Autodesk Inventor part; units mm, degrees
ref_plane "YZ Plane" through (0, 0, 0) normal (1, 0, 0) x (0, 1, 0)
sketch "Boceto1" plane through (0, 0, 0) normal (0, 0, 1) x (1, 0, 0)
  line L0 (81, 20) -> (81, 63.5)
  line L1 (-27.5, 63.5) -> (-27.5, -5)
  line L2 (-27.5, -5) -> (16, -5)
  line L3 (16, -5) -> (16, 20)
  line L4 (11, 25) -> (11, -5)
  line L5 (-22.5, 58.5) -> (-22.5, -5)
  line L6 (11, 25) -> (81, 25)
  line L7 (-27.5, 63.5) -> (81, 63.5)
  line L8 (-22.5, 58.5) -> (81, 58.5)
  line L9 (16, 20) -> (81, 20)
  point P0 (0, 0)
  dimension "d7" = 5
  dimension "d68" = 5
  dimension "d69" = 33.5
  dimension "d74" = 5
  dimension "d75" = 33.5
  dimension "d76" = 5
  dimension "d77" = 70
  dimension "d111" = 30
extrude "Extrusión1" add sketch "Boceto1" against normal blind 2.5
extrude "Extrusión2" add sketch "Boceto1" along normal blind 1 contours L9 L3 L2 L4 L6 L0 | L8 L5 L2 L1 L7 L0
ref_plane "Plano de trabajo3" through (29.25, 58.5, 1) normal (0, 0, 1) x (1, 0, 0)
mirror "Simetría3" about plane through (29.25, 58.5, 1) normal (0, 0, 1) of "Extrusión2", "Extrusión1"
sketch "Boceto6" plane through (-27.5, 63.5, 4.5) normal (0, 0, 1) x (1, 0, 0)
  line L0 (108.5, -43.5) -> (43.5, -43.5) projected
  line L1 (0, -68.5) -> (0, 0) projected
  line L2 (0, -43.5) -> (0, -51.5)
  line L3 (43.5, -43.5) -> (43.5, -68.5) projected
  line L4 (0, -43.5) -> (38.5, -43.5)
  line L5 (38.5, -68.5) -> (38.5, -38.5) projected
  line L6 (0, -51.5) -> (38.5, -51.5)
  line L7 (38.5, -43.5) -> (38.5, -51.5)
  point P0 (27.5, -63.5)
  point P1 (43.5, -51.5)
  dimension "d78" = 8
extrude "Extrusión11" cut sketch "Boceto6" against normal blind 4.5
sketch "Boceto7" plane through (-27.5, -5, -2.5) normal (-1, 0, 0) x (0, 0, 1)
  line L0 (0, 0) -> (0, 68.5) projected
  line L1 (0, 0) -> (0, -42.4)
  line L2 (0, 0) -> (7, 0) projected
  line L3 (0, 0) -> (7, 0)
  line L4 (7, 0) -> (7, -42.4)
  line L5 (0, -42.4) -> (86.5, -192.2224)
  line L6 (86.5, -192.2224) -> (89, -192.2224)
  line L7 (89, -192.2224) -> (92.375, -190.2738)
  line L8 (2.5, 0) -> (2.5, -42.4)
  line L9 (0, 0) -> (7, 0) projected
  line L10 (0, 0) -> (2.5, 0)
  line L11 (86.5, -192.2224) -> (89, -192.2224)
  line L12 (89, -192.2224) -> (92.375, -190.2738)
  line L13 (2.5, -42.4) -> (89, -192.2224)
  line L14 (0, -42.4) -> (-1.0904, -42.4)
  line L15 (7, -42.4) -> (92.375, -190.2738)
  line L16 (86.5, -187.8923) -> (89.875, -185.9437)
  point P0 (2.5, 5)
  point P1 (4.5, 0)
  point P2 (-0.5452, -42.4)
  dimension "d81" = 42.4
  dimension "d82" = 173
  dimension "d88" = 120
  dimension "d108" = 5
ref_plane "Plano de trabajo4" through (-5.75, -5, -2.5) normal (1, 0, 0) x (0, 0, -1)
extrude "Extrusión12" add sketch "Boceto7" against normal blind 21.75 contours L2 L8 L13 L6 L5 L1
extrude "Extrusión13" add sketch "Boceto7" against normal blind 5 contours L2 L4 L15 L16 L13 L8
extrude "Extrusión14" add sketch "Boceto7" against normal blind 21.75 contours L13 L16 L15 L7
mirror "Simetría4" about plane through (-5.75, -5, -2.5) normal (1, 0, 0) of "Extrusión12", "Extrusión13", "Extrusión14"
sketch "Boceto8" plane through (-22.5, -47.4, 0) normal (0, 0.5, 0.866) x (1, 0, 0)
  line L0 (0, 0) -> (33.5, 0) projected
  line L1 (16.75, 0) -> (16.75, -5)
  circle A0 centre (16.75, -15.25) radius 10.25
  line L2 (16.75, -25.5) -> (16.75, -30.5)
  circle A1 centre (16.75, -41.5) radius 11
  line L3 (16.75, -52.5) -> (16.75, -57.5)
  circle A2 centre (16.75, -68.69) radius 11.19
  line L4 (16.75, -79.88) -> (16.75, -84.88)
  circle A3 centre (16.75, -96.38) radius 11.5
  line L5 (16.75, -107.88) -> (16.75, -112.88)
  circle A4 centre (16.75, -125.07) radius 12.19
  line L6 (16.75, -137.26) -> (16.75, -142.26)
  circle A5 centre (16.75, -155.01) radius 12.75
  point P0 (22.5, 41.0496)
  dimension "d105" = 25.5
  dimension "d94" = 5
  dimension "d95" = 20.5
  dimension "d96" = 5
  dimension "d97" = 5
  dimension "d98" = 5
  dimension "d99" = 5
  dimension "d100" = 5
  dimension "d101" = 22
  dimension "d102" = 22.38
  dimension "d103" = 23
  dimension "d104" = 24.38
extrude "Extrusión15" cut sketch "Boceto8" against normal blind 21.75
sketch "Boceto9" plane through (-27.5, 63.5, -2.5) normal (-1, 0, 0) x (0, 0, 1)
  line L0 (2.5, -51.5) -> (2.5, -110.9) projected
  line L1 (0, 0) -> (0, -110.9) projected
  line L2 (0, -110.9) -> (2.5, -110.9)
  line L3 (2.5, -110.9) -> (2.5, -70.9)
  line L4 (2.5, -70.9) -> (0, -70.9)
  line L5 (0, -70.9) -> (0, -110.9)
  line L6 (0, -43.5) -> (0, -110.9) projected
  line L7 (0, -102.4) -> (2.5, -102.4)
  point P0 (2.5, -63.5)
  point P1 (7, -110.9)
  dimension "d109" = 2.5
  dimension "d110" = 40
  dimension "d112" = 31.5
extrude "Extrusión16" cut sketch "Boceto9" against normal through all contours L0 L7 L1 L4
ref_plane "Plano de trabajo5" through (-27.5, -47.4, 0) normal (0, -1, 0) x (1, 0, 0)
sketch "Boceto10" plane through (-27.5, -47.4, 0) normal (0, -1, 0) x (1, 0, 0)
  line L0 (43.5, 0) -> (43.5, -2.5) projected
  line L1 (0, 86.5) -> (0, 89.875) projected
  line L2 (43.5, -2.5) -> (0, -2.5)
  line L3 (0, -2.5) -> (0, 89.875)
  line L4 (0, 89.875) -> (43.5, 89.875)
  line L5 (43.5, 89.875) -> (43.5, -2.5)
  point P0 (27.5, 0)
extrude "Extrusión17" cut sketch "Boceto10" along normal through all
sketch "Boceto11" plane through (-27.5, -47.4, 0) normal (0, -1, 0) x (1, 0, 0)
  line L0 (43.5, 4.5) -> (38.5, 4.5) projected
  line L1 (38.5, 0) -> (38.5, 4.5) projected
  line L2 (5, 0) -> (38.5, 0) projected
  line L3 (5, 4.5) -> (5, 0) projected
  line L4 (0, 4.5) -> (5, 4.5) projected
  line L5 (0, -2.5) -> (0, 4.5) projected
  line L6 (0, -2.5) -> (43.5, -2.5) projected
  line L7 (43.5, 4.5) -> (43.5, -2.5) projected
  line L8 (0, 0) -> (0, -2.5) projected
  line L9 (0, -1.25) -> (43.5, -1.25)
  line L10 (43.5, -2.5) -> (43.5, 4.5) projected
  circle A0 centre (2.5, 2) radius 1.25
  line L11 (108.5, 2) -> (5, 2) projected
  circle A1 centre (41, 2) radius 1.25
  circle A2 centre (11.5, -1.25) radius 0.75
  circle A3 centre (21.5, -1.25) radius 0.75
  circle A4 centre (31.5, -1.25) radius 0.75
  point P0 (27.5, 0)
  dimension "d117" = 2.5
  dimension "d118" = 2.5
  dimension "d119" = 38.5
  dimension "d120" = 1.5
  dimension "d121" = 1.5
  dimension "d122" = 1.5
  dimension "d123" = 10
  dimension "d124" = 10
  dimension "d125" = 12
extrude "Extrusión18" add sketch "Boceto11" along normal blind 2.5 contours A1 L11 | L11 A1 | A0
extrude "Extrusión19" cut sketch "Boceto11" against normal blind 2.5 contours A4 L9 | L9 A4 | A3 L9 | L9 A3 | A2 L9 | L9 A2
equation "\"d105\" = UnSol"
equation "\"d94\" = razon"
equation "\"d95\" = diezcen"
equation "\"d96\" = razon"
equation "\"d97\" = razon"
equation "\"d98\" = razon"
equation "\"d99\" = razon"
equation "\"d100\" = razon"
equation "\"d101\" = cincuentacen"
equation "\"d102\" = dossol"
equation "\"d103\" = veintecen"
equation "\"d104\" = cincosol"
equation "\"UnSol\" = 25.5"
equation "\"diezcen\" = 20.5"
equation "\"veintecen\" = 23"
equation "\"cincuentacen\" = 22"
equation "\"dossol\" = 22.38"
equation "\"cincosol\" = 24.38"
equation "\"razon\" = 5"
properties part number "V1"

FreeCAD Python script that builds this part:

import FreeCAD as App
import Part
import Sketcher
from FreeCAD import Vector
Q = App.Units.Quantity

doc = App.newDocument("Part")
body = doc.addObject("PartDesign::Body", "Body")

# Sketch on XY plane
sketch1 = doc.addObject("Sketcher::SketchObject", "Sketch")
body.addObject(sketch1)
sketch1.AttachmentSupport = (doc.XY_Plane, [""])
sketch1.MapMode = "FlatFace"
sketch1.addGeometry([
    Part.LineSegment(Vector(16, 20, 0), Vector(81, 20, 0)),  # 0
    Part.LineSegment(Vector(81, 20, 0), Vector(81, 64, 0)),  # 1
    Part.LineSegment(Vector(81, 64, 0), Vector(-28, 64, 0)),  # 2
    Part.LineSegment(Vector(-28, 64, 0), Vector(-28, -5, 0)),  # 3
    Part.LineSegment(Vector(-28, -5, 0), Vector(16, -5, 0)),  # 4
    Part.LineSegment(Vector(16, -5, 0), Vector(16, 20, 0)),  # 5
], False)
sketch1.addConstraint([
    Sketcher.Constraint("Coincident", 0, 2, 1, 1),
    Sketcher.Constraint("Coincident", 1, 2, 2, 1),
    Sketcher.Constraint("Coincident", 2, 2, 3, 1),
    Sketcher.Constraint("Coincident", 3, 2, 4, 1),
    Sketcher.Constraint("Coincident", 4, 2, 5, 1),
    Sketcher.Constraint("Coincident", 5, 2, 0, 1),
    Sketcher.Constraint("Horizontal", 0),
    Sketcher.Constraint("Vertical", 1),
    Sketcher.Constraint("Horizontal", 2),
    Sketcher.Constraint("Vertical", 3),
    Sketcher.Constraint("Horizontal", 4),
    Sketcher.Constraint("Vertical", 5),
    Sketcher.Constraint("Equal", 4, 1),
    Sketcher.Constraint("DistanceY", 3, 2, -1, 1, Q("5 mm")),
    Sketcher.Constraint("DistanceX", 0, 1, 0, 2, Q("65 mm")),
    Sketcher.Constraint("DistanceY", 5, 1, 5, 2, Q("25 mm")),
    Sketcher.Constraint("DistanceX", 2, 2, 2, 1, Q("108.5 mm")),
    Sketcher.Constraint("DistanceX", -1, 1, 0, 2, Q("81 mm")),
])
pad1 = doc.addObject("PartDesign::Pad", "Pad")
body.addObject(pad1)
pad1.Profile = sketch1
pad1.Length = 2.5
pad1.Reversed = True

# Sketch on XY plane
sketch2 = doc.addObject("Sketcher::SketchObject", "Sketch001")
body.addObject(sketch2)
sketch2.AttachmentSupport = (doc.XY_Plane, [""])
sketch2.MapMode = "FlatFace"
sketch2.addGeometry([
    Part.LineSegment(Vector(16, 20, 0), Vector(81, 20, 0)),  # 0
    Part.LineSegment(Vector(81, 20, 0), Vector(81, 25, 0)),  # 1
    Part.LineSegment(Vector(81, 25, 0), Vector(11, 25, 0)),  # 2
    Part.LineSegment(Vector(11, 25, 0), Vector(11, -5, 0)),  # 3
    Part.LineSegment(Vector(11, -5, 0), Vector(16, -5, 0)),  # 4
    Part.LineSegment(Vector(16, -5, 0), Vector(16, 20, 0)),  # 5
    Part.LineSegment(Vector(-22, 58, 0), Vector(81, 58, 0)),  # 6
    Part.LineSegment(Vector(81, 58, 0), Vector(81, 64, 0)),  # 7
    Part.LineSegment(Vector(81, 64, 0), Vector(-28, 64, 0)),  # 8
    Part.LineSegment(Vector(-28, 64, 0), Vector(-28, -5, 0)),  # 9
    Part.LineSegment(Vector(-28, -5, 0), Vector(-22, -5, 0)),  # 10
    Part.LineSegment(Vector(-22, -5, 0), Vector(-22, 58, 0)),  # 11
], False)
sketch2.addConstraint([
    Sketcher.Constraint("Coincident", 0, 2, 1, 1),
    Sketcher.Constraint("Coincident", 1, 2, 2, 1),
    Sketcher.Constraint("Coincident", 2, 2, 3, 1),
    Sketcher.Constraint("Coincident", 3, 2, 4, 1),
    Sketcher.Constraint("Coincident", 4, 2, 5, 1),
    Sketcher.Constraint("Coincident", 5, 2, 0, 1),
    Sketcher.Constraint("Coincident", 6, 2, 7, 1),
    Sketcher.Constraint("Coincident", 7, 2, 8, 1),
    Sketcher.Constraint("Coincident", 8, 2, 9, 1),
    Sketcher.Constraint("Coincident", 9, 2, 10, 1),
    Sketcher.Constraint("Coincident", 10, 2, 11, 1),
    Sketcher.Constraint("Coincident", 11, 2, 6, 1),
    Sketcher.Constraint("Horizontal", 0),
    Sketcher.Constraint("Vertical", 1),
    Sketcher.Constraint("Horizontal", 2),
    Sketcher.Constraint("Vertical", 3),
    Sketcher.Constraint("Horizontal", 4),
    Sketcher.Constraint("Vertical", 5),
    Sketcher.Constraint("Horizontal", 6),
    Sketcher.Constraint("Vertical", 7),
    Sketcher.Constraint("Horizontal", 8),
    Sketcher.Constraint("Vertical", 9),
    Sketcher.Constraint("Horizontal", 10),
    Sketcher.Constraint("Vertical", 11),
    Sketcher.Constraint("Horizontal", 4, 2, 9, 2),
    Sketcher.Constraint("Vertical", 1, 2, 6, 2),
    Sketcher.Constraint("Equal", 4, 10),
    Sketcher.Constraint("Equal", 10, 1),
    Sketcher.Constraint("Equal", 1, 7),
    Sketcher.Constraint("DistanceX", 2, 2, 2, 1, Q("70 mm")),
    Sketcher.Constraint("DistanceX", 4, 1, 4, 2, Q("5 mm")),
    Sketcher.Constraint("DistanceY", 3, 2, 3, 1, Q("30 mm")),
    Sketcher.Constraint("DistanceY", 3, 2, -1, 1, Q("5 mm")),
    Sketcher.Constraint("DistanceY", 1, 2, 6, 2, Q("33.5 mm")),
    Sketcher.Constraint("DistanceX", 10, 2, 3, 2, Q("33.5 mm")),
    Sketcher.Constraint("DistanceX", -1, 1, 0, 2, Q("81 mm")),
])
pad2 = doc.addObject("PartDesign::Pad", "Pad001")
body.addObject(pad2)
pad2.Profile = sketch2
pad2.Length = 1
doc.recompute()

datumplane = doc.addObject("PartDesign::Plane", "DatumPlane")
body.addObject(datumplane)
datumplane.AttachmentSupport = (doc.XY_Plane, [""])
datumplane.MapMode = "FlatFace"
datumplane.AttachmentOffset = App.Placement(Vector(0, 0, 1), App.Rotation())
mirrored = doc.addObject("PartDesign::Mirrored", "Mirrored")
body.addObject(mirrored)
mirrored.Originals = [pad2, pad1]
mirrored.MirrorPlane = (datumplane, [""])
body.Tip = mirrored

# Sketch on XY plane
sketch3 = doc.addObject("Sketcher::SketchObject", "Sketch002")
body.addObject(sketch3)
sketch3.AttachmentSupport = (doc.XY_Plane, [""])
sketch3.MapMode = "FlatFace"
sketch3.AttachmentOffset = App.Placement(Vector(0, 0, 4.5), App.Rotation())
sketch3.addGeometry([
    Part.LineSegment(Vector(-28, 20, 0), Vector(-28, 12, 0)),
    Part.LineSegment(Vector(-28, 12, 0), Vector(11, 12, 0)),
    Part.LineSegment(Vector(11, 12, 0), Vector(11, 20, 0)),
    Part.LineSegment(Vector(11, 20, 0), Vector(-28, 20, 0)),
], False)
sketch3.addConstraint([
    Sketcher.Constraint("Coincident", 0, 2, 1, 1),
    Sketcher.Constraint("Coincident", 1, 2, 2, 1),
    Sketcher.Constraint("Coincident", 2, 2, 3, 1),
    Sketcher.Constraint("Coincident", 3, 2, 0, 1),
    Sketcher.Constraint("Vertical", 0),
    Sketcher.Constraint("Horizontal", 1),
    Sketcher.Constraint("Vertical", 2),
    Sketcher.Constraint("Horizontal", 3),
    Sketcher.Constraint("DistanceY", 0, 2, 0, 1, Q("8 mm")),
    Sketcher.Constraint("DistanceX", 1, 1, 1, 2, Q("38.5 mm")),
    Sketcher.Constraint("DistanceY", -1, 1, 0, 2, Q("12 mm")),
    Sketcher.Constraint("DistanceX", -1, 1, 1, 2, Q("11 mm")),
])
pocket1 = doc.addObject("PartDesign::Pocket", "Pocket")
body.addObject(pocket1)
pocket1.Profile = sketch3
pocket1.Length = 4.5

# Sketch on YZ plane
sketch4 = doc.addObject("Sketcher::SketchObject", "Sketch003")
body.addObject(sketch4)
sketch4.AttachmentSupport = (doc.YZ_Plane, [""])
sketch4.MapMode = "FlatFace"
sketch4.AttachmentOffset = App.Placement(Vector(0, 0, -27.5), App.Rotation())
sketch4.addGeometry([
    Part.LineSegment(Vector(-5, 0, 0), Vector(-5, -2.5, 0)),  # 0
    Part.LineSegment(Vector(-5, -2.5, 0), Vector(-47.4, -2.5, 0)),  # 1
    Part.LineSegment(Vector(-47.4, -2.5, 0), Vector(-197.2, 84, 0)),  # 2
    Part.LineSegment(Vector(-197.2, 84, 0), Vector(-197.2, 86.5, 0)),  # 3
    Part.LineSegment(Vector(-197.2, 86.5, 0), Vector(-47.4, 0, 0)),  # 4
    Part.LineSegment(Vector(-47.4, 0, 0), Vector(-5, 0, 0)),  # 5
], False)
sketch4.addConstraint([
    Sketcher.Constraint("Coincident", 0, 2, 1, 1),
    Sketcher.Constraint("Coincident", 1, 2, 2, 1),
    Sketcher.Constraint("Coincident", 2, 2, 3, 1),
    Sketcher.Constraint("Coincident", 3, 2, 4, 1),
    Sketcher.Constraint("Coincident", 4, 2, 5, 1),
    Sketcher.Constraint("Coincident", 5, 2, 0, 1),
    Sketcher.Constraint("Vertical", 0),
    Sketcher.Constraint("Horizontal", 1),
    Sketcher.Constraint("Vertical", 3),
    Sketcher.Constraint("Horizontal", 5),
    Sketcher.Constraint("PointOnObject", 4, 2, -1),
    Sketcher.Constraint("Parallel", 2, 4),
    Sketcher.Constraint("Vertical", 1, 2, 4, 2),
    Sketcher.Constraint("Distance", 2, Q("173 mm")),
    Sketcher.Constraint("DistanceX", 1, 2, 1, 1, Q("42.4 mm")),
    Sketcher.Constraint("DistanceX", 0, 2, -1, 1, Q("5 mm")),
    Sketcher.Constraint("Angle", 2, Q("150 deg")),
    Sketcher.Constraint("DistanceY", 0, 2, 0, 1, Q("2.5 mm")),
])
pad3 = doc.addObject("PartDesign::Pad", "Pad002")
body.addObject(pad3)
pad3.Profile = sketch4
pad3.Length = 21.75

# Sketch on YZ plane
sketch5 = doc.addObject("Sketcher::SketchObject", "Sketch004")
body.addObject(sketch5)
sketch5.AttachmentSupport = (doc.YZ_Plane, [""])
sketch5.MapMode = "FlatFace"
sketch5.AttachmentOffset = App.Placement(Vector(0, 0, -27.5), App.Rotation())
sketch5.addGeometry([
    Part.LineSegment(Vector(-5, 4.5, 0), Vector(-5, 0, 0)),  # 0
    Part.LineSegment(Vector(-5, 0, 0), Vector(-47.4, 0, 0)),  # 1
    Part.LineSegment(Vector(-47.4, 0, 0), Vector(-192.9, 84, 0)),  # 2
    Part.LineSegment(Vector(-192.9, 84, 0), Vector(-190.9, 87.4, 0)),  # 3
    Part.LineSegment(Vector(-190.9, 87.4, 0), Vector(-47.4, 4.5, 0)),  # 4
    Part.LineSegment(Vector(-47.4, 4.5, 0), Vector(-5, 4.5, 0)),  # 5
], False)
sketch5.addConstraint([
    Sketcher.Constraint("Coincident", 0, 2, 1, 1),
    Sketcher.Constraint("Coincident", 1, 2, 2, 1),
    Sketcher.Constraint("Coincident", 2, 2, 3, 1),
    Sketcher.Constraint("Coincident", 3, 2, 4, 1),
    Sketcher.Constraint("Coincident", 4, 2, 5, 1),
    Sketcher.Constraint("Coincident", 5, 2, 0, 1),
    Sketcher.Constraint("Vertical", 0),
    Sketcher.Constraint("Horizontal", 1),
    Sketcher.Constraint("Horizontal", 5),
    Sketcher.Constraint("PointOnObject", 0, 2, -1),
    Sketcher.Constraint("Perpendicular", 2, 3),
    Sketcher.Constraint("Perpendicular", 3, 4),
    Sketcher.Constraint("Vertical", 1, 2, 4, 2),
    Sketcher.Constraint("DistanceX", 1, 2, 1, 1, Q("42.4 mm")),
    Sketcher.Constraint("DistanceX", 0, 2, -1, 1, Q("5 mm")),
    Sketcher.Constraint("Angle", 2, Q("150 deg")),
    Sketcher.Constraint("Distance", 2, Q("168 mm")),
    Sketcher.Constraint("DistanceY", 0, 2, 0, 1, Q("4.5 mm")),
])
pad4 = doc.addObject("PartDesign::Pad", "Pad003")
body.addObject(pad4)
pad4.Profile = sketch5
pad4.Length = 5

# Sketch on YZ plane
sketch6 = doc.addObject("Sketcher::SketchObject", "Sketch005")
body.addObject(sketch6)
sketch6.AttachmentSupport = (doc.YZ_Plane, [""])
sketch6.MapMode = "FlatFace"
sketch6.AttachmentOffset = App.Placement(Vector(0, 0, -27.5), App.Rotation())
sketch6.addGeometry([
    Part.LineSegment(Vector(-192.9, 84, 0), Vector(-197.2, 86.5, 0)),
    Part.LineSegment(Vector(-197.2, 86.5, 0), Vector(-195.3, 89.9, 0)),
    Part.LineSegment(Vector(-195.3, 89.9, 0), Vector(-190.9, 87.4, 0)),
    Part.LineSegment(Vector(-190.9, 87.4, 0), Vector(-192.9, 84, 0)),
], False)
sketch6.addConstraint([
    Sketcher.Constraint("Coincident", 0, 2, 1, 1),
    Sketcher.Constraint("Coincident", 1, 2, 2, 1),
    Sketcher.Constraint("Coincident", 2, 2, 3, 1),
    Sketcher.Constraint("Coincident", 3, 2, 0, 1),
    Sketcher.Constraint("Perpendicular", 0, 1),
    Sketcher.Constraint("Perpendicular", 1, 2),
    Sketcher.Constraint("Perpendicular", 2, 3),
    Sketcher.Constraint("Angle", 3, Q("-120.0005 deg")),
    Sketcher.Constraint("Distance", 0, Q("5 mm")),
    Sketcher.Constraint("DistanceY", -1, 1, 3, 2, Q("84 mm")),
    Sketcher.Constraint("DistanceY", -1, 1, 1, 2, Q("89.875 mm")),
    Sketcher.Constraint("DistanceX", 0, 2, -1, 1, Q("197.2224 mm")),
])
pad5 = doc.addObject("PartDesign::Pad", "Pad004")
body.addObject(pad5)
pad5.Profile = sketch6
pad5.Length = 21.75
doc.recompute()

datumplane2 = doc.addObject("PartDesign::Plane", "DatumPlane001")
body.addObject(datumplane2)
datumplane2.AttachmentSupport = (doc.YZ_Plane, [""])
datumplane2.MapMode = "FlatFace"
datumplane2.AttachmentOffset = App.Placement(Vector(0, 0, -5.75), App.Rotation())
mirrored2 = doc.addObject("PartDesign::Mirrored", "Mirrored001")
body.addObject(mirrored2)
mirrored2.Originals = [pad3, pad4, pad5]
mirrored2.MirrorPlane = (datumplane2, [""])
body.Tip = mirrored2

# Sketch on an angled plane
sketch7 = doc.addObject("Sketcher::SketchObject", "Sketch006")
body.addObject(sketch7)
sketch7.Placement = App.Placement(Vector(-22.5, -47.4, 0), App.Rotation(Vector(1, 0, 0), Vector(0, 0.866025404, -0.5), Vector(0, 0.5, 0.866025404), "ZXY"))
sketch7.addGeometry([
    Part.Circle(Vector(17, -15, 0), Vector(0, 0, 1), 10),  # 0
    Part.Circle(Vector(17, -155, 0), Vector(0, 0, 1), 13),  # 1
    Part.Circle(Vector(17, -125, 0), Vector(0, 0, 1), 12),  # 2
    Part.Circle(Vector(17, -96, 0), Vector(0, 0, 1), 12),  # 3
    Part.Circle(Vector(17, -69, 0), Vector(0, 0, 1), 11),  # 4
    Part.Circle(Vector(17, -42, 0), Vector(0, 0, 1), 11),  # 5
], False)
sketch7.addConstraint([
    Sketcher.Constraint("Vertical", 0, 3, 1, 3),
    Sketcher.Constraint("Vertical", 1, 3, 2, 3),
    Sketcher.Constraint("Vertical", 2, 3, 3, 3),
    Sketcher.Constraint("Vertical", 3, 3, 4, 3),
    Sketcher.Constraint("Vertical", 4, 3, 5, 3),
    Sketcher.Constraint("Diameter", 3, Q("23 mm")),
    Sketcher.Constraint("Diameter", 5, Q("22 mm")),
    Sketcher.Constraint("Diameter", 0, Q("20.5 mm")),
    Sketcher.Constraint("Diameter", 1, Q("25.5 mm")),
    Sketcher.Constraint("Diameter", 2, Q("24.38 mm")),
    Sketcher.Constraint("Diameter", 4, Q("22.38 mm")),
    Sketcher.Constraint("DistanceY", 5, 3, -1, 1, Q("41.5 mm")),
    Sketcher.Constraint("DistanceX", -1, 1, 0, 3, Q("16.75 mm")),
    Sketcher.Constraint("DistanceY", 0, 3, -1, 1, Q("15.25 mm")),
    Sketcher.Constraint("DistanceY", 1, 3, -1, 1, Q("155.01 mm")),
    Sketcher.Constraint("DistanceY", 2, 3, -1, 1, Q("125.07 mm")),
    Sketcher.Constraint("DistanceY", 3, 3, -1, 1, Q("96.38 mm")),
    Sketcher.Constraint("DistanceY", 4, 3, -1, 1, Q("68.69 mm")),
])
pocket2 = doc.addObject("PartDesign::Pocket", "Pocket001")
body.addObject(pocket2)
pocket2.Profile = sketch7
pocket2.Length = 21.75

# Sketch on YZ plane
sketch8 = doc.addObject("Sketcher::SketchObject", "Sketch007")
body.addObject(sketch8)
sketch8.AttachmentSupport = (doc.YZ_Plane, [""])
sketch8.MapMode = "FlatFace"
sketch8.AttachmentOffset = App.Placement(Vector(0, 0, -27.5), App.Rotation())
sketch8.addGeometry([
    Part.LineSegment(Vector(-38.9, 0, 0), Vector(-7.4, 0, 0)),
    Part.LineSegment(Vector(-7.4, 0, 0), Vector(-7.4, -2.5, 0)),
    Part.LineSegment(Vector(-7.4, -2.5, 0), Vector(-38.9, -2.5, 0)),
    Part.LineSegment(Vector(-38.9, -2.5, 0), Vector(-38.9, 0, 0)),
], False)
sketch8.addConstraint([
    Sketcher.Constraint("Coincident", 0, 2, 1, 1),
    Sketcher.Constraint("Coincident", 1, 2, 2, 1),
    Sketcher.Constraint("Coincident", 2, 2, 3, 1),
    Sketcher.Constraint("Coincident", 3, 2, 0, 1),
    Sketcher.Constraint("Horizontal", 0),
    Sketcher.Constraint("Vertical", 1),
    Sketcher.Constraint("Horizontal", 2),
    Sketcher.Constraint("Vertical", 3),
    Sketcher.Constraint("PointOnObject", 0, 2, -1),
    Sketcher.Constraint("DistanceX", 0, 1, 0, 2, Q("31.5 mm")),
    Sketcher.Constraint("DistanceY", 1, 2, 1, 1, Q("2.5 mm")),
    Sketcher.Constraint("DistanceX", 0, 2, -1, 1, Q("7.4 mm")),
])
pocket3 = doc.addObject("PartDesign::Pocket", "Pocket002")
body.addObject(pocket3)
pocket3.Profile = sketch8
pocket3.Type = "ThroughAll"
pocket3.Reversed = True

# Sketch on XZ plane
sketch9 = doc.addObject("Sketcher::SketchObject", "Sketch008")
body.addObject(sketch9)
sketch9.AttachmentSupport = (doc.XZ_Plane, [""])
sketch9.MapMode = "FlatFace"
sketch9.AttachmentOffset = App.Placement(Vector(0, 0, 47.4), App.Rotation())
sketch9.addGeometry([
    Part.LineSegment(Vector(16, -2, 0), Vector(16, 90, 0)),
    Part.LineSegment(Vector(16, 90, 0), Vector(-28, 90, 0)),
    Part.LineSegment(Vector(-28, 90, 0), Vector(-28, -2, 0)),
    Part.LineSegment(Vector(-28, -2, 0), Vector(16, -2, 0)),
], False)
sketch9.addConstraint([
    Sketcher.Constraint("Coincident", 0, 2, 1, 1),
    Sketcher.Constraint("Coincident", 1, 2, 2, 1),
    Sketcher.Constraint("Coincident", 2, 2, 3, 1),
    Sketcher.Constraint("Coincident", 3, 2, 0, 1),
    Sketcher.Constraint("Vertical", 0),
    Sketcher.Constraint("Horizontal", 1),
    Sketcher.Constraint("Vertical", 2),
    Sketcher.Constraint("Horizontal", 3),
    Sketcher.Constraint("DistanceX", 1, 2, 1, 1, Q("43.5 mm")),
    Sketcher.Constraint("DistanceX", -1, 1, 0, 2, Q("16 mm")),
    Sketcher.Constraint("DistanceY", 2, 2, -1, 1, Q("2.5 mm")),
    Sketcher.Constraint("DistanceY", 0, 1, 0, 2, Q("92.375 mm")),
])
pocket4 = doc.addObject("PartDesign::Pocket", "Pocket003")
body.addObject(pocket4)
pocket4.Profile = sketch9
pocket4.Type = "ThroughAll"
pocket4.Reversed = True

# Sketch on XZ plane
sketch10 = doc.addObject("Sketcher::SketchObject", "Sketch009")
body.addObject(sketch10)
sketch10.AttachmentSupport = (doc.XZ_Plane, [""])
sketch10.MapMode = "FlatFace"
sketch10.AttachmentOffset = App.Placement(Vector(0, 0, 47.4), App.Rotation())
sketch10.addGeometry([
    Part.Circle(Vector(13.5, 2, 0), Vector(0, 0, 1), 1.2),
    Part.Circle(Vector(-25, 2, 0), Vector(0, 0, 1), 1.2),
], False)
sketch10.addConstraint([
    Sketcher.Constraint("Equal", 0, 1),
    Sketcher.Constraint("Horizontal", 0, 3, 1, 3),
    Sketcher.Constraint("Diameter", 0, Q("2.5 mm")),
    Sketcher.Constraint("DistanceX", 1, 3, 0, 3, Q("38.5 mm")),
    Sketcher.Constraint("DistanceY", -1, 1, 0, 3, Q("2 mm")),
    Sketcher.Constraint("DistanceX", 1, 3, -1, 1, Q("25 mm")),
])
pad6 = doc.addObject("PartDesign::Pad", "Pad005")
body.addObject(pad6)
pad6.Profile = sketch10
pad6.Length = 2.5

# Sketch on XZ plane
sketch11 = doc.addObject("Sketcher::SketchObject", "Sketch010")
body.addObject(sketch11)
sketch11.AttachmentSupport = (doc.XZ_Plane, [""])
sketch11.MapMode = "FlatFace"
sketch11.AttachmentOffset = App.Placement(Vector(0, 0, 47.4), App.Rotation())
sketch11.addGeometry([
    Part.Circle(Vector(4, -1.2, 0), Vector(0, 0, 1), 0.8),
    Part.Circle(Vector(-6, -1.2, 0), Vector(0, 0, 1), 0.8),
    Part.Circle(Vector(-16, -1.2, 0), Vector(0, 0, 1), 0.8),
], False)
sketch11.addConstraint([
    Sketcher.Constraint("Equal", 0, 1),
    Sketcher.Constraint("Equal", 1, 2),
    Sketcher.Constraint("Horizontal", 0, 3, 1, 3),
    Sketcher.Constraint("Horizontal", 1, 3, 2, 3),
    Sketcher.Constraint("Diameter", 0, Q("1.5 mm")),
    Sketcher.Constraint("DistanceX", 1, 3, 0, 3, Q("10 mm")),
    Sketcher.Constraint("DistanceX", 2, 3, 1, 3, Q("10 mm")),
    Sketcher.Constraint("DistanceX", -1, 1, 0, 3, Q("4 mm")),
    Sketcher.Constraint("DistanceY", 0, 3, -1, 1, Q("1.25 mm")),
])
pocket5 = doc.addObject("PartDesign::Pocket", "Pocket004")
body.addObject(pocket5)
pocket5.Profile = sketch11
pocket5.Length = 2.5

doc.recompute()
